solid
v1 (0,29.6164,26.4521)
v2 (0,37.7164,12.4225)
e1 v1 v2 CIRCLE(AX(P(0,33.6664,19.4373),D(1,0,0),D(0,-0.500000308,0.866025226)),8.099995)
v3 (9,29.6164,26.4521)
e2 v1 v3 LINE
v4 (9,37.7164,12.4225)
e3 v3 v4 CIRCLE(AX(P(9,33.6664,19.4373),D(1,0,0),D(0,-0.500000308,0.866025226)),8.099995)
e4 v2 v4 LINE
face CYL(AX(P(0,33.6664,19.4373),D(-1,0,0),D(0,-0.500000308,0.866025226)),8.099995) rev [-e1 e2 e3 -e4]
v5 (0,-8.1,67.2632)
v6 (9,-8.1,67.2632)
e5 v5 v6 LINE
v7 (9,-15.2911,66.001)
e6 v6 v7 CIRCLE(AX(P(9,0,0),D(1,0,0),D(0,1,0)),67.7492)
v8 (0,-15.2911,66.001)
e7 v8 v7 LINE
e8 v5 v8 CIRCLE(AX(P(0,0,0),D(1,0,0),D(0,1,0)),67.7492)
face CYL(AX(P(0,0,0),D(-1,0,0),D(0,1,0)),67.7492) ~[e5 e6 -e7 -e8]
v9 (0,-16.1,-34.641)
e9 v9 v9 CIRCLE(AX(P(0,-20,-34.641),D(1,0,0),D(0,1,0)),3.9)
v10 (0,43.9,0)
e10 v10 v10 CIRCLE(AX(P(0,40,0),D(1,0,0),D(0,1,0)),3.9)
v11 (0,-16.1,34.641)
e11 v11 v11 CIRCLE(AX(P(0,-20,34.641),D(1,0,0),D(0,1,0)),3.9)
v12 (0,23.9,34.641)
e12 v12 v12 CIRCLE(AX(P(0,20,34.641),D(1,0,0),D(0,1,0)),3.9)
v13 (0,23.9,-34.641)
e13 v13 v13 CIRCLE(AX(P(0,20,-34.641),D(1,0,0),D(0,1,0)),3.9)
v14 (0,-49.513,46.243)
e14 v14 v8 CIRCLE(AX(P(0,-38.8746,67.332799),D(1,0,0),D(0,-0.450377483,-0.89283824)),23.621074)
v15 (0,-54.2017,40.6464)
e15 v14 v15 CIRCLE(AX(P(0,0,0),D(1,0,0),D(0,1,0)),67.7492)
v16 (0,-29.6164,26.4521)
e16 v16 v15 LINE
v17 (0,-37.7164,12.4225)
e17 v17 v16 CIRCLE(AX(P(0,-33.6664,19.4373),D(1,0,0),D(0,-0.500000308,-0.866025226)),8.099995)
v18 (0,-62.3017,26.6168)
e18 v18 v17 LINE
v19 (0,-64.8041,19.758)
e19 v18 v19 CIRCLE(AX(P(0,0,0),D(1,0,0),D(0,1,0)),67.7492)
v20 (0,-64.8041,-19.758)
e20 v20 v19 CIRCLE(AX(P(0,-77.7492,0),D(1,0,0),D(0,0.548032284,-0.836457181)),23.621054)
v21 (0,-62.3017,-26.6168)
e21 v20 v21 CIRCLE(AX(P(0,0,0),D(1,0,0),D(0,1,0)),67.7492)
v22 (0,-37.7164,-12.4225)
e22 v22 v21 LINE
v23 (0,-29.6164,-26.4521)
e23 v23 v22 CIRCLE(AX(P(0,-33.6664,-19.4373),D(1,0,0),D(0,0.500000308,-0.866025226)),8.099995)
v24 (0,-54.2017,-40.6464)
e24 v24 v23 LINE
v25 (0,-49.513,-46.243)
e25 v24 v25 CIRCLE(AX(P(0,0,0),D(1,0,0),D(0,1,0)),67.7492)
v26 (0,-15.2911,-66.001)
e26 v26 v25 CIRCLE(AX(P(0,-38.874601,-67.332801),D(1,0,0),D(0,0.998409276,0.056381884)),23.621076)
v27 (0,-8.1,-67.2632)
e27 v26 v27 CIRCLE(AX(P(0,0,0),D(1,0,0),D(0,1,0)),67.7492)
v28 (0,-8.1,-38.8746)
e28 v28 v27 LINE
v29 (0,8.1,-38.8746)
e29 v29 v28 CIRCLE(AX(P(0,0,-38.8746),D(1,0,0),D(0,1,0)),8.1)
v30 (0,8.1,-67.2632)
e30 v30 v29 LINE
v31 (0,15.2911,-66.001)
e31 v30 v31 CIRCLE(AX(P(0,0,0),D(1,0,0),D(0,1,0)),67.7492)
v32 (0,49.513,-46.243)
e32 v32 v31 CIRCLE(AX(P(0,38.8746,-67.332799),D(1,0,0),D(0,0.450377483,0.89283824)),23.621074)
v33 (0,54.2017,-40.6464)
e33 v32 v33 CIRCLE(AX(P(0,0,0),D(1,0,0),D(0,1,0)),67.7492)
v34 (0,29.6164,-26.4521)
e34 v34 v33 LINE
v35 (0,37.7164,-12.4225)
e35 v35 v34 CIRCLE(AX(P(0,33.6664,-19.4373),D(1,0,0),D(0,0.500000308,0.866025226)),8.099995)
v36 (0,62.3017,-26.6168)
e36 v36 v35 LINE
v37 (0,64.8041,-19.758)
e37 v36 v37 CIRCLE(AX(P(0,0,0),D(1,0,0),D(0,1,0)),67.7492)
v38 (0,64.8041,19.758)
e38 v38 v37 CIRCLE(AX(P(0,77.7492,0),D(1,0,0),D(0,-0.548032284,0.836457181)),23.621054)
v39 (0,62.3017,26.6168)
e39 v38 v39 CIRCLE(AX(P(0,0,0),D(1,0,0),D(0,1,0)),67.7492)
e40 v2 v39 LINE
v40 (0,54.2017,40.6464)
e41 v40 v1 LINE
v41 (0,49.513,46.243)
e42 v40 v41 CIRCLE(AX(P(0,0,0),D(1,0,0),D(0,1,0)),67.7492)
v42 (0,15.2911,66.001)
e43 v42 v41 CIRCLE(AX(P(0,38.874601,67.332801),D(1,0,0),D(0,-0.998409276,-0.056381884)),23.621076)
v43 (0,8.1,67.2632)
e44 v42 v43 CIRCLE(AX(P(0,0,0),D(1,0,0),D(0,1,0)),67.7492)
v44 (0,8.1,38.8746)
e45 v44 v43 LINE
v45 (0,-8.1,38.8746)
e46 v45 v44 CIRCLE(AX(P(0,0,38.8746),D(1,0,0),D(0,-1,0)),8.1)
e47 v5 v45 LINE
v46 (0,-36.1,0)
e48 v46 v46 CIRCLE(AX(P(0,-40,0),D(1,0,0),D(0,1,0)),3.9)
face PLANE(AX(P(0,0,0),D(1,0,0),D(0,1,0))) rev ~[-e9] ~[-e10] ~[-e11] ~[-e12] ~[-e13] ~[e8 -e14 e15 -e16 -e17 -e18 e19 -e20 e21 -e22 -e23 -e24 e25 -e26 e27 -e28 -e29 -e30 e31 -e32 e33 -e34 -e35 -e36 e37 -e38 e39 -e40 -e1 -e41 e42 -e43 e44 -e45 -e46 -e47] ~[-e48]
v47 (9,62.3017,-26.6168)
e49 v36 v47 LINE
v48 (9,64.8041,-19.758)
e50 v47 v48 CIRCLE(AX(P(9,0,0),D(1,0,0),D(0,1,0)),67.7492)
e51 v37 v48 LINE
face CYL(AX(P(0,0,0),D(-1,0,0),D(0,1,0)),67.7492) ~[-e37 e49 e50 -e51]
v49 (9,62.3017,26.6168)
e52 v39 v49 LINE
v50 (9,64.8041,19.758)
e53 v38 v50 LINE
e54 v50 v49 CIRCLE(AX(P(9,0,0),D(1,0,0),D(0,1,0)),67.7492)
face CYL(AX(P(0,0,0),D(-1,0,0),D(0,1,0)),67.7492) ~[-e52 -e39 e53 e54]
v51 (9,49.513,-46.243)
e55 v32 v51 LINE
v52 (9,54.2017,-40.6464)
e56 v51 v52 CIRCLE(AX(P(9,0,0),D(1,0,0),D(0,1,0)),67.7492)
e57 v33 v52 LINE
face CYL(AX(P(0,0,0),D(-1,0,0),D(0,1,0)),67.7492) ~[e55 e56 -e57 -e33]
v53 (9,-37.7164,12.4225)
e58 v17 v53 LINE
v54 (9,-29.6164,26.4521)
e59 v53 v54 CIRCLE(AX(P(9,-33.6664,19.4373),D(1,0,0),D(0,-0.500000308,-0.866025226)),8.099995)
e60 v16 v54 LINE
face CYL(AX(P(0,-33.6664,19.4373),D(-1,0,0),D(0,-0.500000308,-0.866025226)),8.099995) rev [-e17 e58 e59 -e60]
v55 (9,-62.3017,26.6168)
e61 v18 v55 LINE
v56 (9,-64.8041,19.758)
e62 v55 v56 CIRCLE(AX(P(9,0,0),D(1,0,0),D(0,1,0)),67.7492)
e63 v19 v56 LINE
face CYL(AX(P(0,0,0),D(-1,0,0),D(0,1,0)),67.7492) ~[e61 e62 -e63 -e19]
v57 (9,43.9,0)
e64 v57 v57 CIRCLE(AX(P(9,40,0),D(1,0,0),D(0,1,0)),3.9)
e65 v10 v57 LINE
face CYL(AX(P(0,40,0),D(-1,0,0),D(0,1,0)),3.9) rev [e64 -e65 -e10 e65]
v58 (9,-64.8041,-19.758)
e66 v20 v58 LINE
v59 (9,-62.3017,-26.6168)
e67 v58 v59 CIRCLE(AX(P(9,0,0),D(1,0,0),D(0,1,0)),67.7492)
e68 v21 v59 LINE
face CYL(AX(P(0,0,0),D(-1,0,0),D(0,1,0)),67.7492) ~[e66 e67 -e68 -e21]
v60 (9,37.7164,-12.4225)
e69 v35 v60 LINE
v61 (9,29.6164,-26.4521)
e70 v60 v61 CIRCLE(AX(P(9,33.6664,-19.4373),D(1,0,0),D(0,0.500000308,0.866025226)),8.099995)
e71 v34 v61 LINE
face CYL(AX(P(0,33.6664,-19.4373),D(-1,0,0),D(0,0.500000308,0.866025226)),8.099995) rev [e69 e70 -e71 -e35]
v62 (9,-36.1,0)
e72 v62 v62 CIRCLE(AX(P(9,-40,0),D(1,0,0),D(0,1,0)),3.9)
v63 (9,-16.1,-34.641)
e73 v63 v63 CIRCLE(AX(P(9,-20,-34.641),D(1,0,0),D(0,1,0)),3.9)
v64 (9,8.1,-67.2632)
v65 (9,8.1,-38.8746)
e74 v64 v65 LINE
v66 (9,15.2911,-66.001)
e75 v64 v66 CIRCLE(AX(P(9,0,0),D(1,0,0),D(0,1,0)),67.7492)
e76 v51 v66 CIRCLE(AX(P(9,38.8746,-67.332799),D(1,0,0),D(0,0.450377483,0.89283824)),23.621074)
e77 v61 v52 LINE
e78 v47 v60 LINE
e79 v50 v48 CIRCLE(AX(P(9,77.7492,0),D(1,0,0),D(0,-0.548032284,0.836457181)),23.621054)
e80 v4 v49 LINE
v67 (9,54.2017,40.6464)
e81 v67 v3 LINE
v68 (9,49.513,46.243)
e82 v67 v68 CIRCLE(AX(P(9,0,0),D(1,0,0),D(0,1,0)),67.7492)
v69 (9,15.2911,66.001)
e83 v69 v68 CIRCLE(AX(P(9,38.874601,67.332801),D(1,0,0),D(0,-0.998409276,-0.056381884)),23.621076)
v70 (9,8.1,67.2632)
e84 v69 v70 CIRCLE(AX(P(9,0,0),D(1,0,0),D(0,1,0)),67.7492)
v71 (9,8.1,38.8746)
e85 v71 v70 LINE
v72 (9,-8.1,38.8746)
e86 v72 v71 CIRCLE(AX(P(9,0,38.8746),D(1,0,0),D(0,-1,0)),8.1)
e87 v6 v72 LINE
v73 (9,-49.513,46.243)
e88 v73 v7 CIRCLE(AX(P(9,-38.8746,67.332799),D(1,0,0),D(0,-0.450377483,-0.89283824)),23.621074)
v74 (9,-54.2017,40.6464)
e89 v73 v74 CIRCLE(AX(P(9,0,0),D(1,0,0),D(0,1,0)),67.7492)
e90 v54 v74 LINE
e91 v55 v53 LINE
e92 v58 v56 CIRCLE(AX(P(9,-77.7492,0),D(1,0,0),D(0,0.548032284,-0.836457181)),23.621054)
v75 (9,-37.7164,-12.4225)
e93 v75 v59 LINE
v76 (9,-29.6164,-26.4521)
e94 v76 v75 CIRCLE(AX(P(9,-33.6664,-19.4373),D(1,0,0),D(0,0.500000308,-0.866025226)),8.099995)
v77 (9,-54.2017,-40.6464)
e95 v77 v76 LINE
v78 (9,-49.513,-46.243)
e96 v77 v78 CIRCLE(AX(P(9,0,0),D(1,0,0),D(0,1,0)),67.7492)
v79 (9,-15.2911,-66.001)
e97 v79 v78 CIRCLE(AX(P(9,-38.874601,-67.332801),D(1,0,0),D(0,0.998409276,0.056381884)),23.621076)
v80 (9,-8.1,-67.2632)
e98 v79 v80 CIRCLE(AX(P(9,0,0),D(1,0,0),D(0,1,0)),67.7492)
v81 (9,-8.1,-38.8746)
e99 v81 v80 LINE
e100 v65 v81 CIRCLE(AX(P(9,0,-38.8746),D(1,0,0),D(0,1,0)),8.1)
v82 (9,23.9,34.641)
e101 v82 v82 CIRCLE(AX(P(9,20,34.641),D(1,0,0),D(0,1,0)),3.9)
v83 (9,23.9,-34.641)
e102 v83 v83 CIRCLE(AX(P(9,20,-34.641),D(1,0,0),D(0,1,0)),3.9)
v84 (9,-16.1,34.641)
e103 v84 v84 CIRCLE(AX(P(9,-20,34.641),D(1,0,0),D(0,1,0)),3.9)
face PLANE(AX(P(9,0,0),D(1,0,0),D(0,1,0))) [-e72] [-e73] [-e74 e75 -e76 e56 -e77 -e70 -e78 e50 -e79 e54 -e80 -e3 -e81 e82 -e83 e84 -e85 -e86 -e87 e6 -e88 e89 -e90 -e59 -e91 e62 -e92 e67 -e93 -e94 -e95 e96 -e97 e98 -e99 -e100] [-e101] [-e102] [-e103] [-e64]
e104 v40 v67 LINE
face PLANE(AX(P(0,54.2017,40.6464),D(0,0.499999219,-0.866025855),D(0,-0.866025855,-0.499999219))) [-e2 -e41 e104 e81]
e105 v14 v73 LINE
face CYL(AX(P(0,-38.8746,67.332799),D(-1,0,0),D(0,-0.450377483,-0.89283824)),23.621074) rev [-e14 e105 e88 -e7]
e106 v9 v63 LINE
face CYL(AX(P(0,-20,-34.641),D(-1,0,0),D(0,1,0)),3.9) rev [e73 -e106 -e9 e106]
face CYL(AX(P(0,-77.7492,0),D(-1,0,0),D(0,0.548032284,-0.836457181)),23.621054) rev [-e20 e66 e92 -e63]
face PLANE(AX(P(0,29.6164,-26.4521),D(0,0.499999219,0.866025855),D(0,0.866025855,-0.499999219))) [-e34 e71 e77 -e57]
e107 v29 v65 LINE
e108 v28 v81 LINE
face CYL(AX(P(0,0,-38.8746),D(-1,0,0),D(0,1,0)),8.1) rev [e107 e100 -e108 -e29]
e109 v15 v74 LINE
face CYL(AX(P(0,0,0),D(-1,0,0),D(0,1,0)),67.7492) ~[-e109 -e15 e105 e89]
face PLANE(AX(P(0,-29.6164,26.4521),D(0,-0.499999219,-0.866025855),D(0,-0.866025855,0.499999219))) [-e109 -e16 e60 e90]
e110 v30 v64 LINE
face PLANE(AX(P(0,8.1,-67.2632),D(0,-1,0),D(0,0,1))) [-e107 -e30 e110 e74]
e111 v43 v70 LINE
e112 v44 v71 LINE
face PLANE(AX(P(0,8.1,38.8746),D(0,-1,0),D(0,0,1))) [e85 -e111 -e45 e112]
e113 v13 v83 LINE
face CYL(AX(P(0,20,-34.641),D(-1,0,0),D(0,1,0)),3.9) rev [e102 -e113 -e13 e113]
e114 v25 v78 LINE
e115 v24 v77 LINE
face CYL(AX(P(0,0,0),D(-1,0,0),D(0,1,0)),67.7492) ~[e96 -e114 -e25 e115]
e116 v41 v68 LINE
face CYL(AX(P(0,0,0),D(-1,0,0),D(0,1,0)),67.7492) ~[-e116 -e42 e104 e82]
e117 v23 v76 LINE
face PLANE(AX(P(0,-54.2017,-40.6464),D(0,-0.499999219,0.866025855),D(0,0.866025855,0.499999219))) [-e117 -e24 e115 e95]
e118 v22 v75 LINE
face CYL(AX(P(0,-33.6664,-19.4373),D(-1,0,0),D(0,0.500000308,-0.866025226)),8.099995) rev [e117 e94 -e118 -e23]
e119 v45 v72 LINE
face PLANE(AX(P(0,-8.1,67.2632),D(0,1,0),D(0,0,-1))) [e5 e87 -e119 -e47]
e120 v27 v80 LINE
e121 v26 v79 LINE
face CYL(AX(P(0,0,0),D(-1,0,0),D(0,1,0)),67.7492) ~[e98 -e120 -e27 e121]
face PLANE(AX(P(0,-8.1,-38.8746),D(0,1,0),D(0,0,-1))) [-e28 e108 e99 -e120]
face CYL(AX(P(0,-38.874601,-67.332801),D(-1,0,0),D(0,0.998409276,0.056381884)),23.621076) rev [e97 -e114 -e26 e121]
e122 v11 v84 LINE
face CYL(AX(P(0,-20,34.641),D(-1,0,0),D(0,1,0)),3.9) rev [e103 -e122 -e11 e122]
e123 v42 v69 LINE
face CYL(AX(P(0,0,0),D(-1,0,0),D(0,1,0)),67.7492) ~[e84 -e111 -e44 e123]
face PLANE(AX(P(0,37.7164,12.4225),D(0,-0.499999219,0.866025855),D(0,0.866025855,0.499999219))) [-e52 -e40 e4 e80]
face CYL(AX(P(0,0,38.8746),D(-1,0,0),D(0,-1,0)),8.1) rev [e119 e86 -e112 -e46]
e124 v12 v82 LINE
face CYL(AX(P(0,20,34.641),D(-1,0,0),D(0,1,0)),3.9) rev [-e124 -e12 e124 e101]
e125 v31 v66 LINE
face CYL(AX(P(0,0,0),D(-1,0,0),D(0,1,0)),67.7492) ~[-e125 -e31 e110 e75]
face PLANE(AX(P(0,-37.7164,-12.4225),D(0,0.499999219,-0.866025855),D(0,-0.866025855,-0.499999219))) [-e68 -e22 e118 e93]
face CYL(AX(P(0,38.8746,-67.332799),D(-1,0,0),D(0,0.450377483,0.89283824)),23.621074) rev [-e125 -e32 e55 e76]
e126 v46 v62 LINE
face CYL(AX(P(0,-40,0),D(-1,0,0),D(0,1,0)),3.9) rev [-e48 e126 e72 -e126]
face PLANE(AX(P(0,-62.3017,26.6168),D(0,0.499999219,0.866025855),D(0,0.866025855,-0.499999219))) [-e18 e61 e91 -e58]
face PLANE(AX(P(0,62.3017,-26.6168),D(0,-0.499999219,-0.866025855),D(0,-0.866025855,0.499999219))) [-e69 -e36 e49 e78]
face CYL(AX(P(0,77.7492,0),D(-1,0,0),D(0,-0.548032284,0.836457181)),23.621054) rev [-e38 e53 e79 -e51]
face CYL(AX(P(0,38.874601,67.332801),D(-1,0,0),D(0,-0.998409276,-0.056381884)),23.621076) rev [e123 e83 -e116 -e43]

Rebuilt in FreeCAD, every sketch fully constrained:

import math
import FreeCAD as App
import Part
import Sketcher
Q = App.Units.Quantity

doc = App.newDocument("Part")
params = doc.addObject("Spreadsheet::Sheet", "Params")
for row, (alias, value) in enumerate([
    ("sketch1_diameter", "7.8 mm"),
    ("sketch1_radius", "8.1 mm"),
    ("pad1_length", "9 mm"),
], start=1):
    params.set(f"A{row}", alias)
    params.set(f"B{row}", "=" + value)
    params.setAlias(f"B{row}", alias)

body = doc.addObject("PartDesign::Body", "Body")

sketch1 = body.newObject("Sketcher::SketchObject", "Sketch")
sketch1.AttachmentSupport = (doc.getObject("YZ_Plane"), [""])
sketch1.MapMode = "FlatFace"
sketch1.addGeometry([
    Part.ArcOfCircle(Part.Circle(App.Vector(77.7, 0, 0), App.Vector(0, 0, 1), 23.6), math.radians(123), math.radians(237)),
    Part.ArcOfCircle(Part.Circle(App.Vector(0, 0, 0), App.Vector(0, 0, 1), 67.7), math.radians(16.96), math.radians(23.13)),
    Part.LineSegment(App.Vector(62.3, 26.6, 0), App.Vector(37.7, 12.4, 0)),
    Part.ArcOfCircle(Part.Circle(App.Vector(33.7, 19.4, 0), App.Vector(0, 0, 1), 8.1), math.radians(120), math.radians(300)),
    Part.LineSegment(App.Vector(29.6, 26.5, 0), App.Vector(54.2, 40.6, 0)),
    Part.ArcOfCircle(Part.Circle(App.Vector(0, 0, 0), App.Vector(0, 0, 1), 67.7), math.radians(36.87), math.radians(43.04)),
    Part.ArcOfCircle(Part.Circle(App.Vector(38.9, 67.3, 0), App.Vector(0, 0, 1), 23.6), math.radians(-177), math.radians(-63)),
    Part.ArcOfCircle(Part.Circle(App.Vector(0, 0, 0), App.Vector(0, 0, 1), 67.7), math.radians(76.96), math.radians(83.13)),
    Part.LineSegment(App.Vector(8.1, 67.3, 0), App.Vector(8.1, 38.9, 0)),
    Part.ArcOfCircle(Part.Circle(App.Vector(0, 38.9, 0), App.Vector(0, 0, 1), 8.1), math.radians(180), math.radians(360)),
    Part.LineSegment(App.Vector(-8.1, 38.9, 0), App.Vector(-8.1, 67.3, 0)),
    Part.ArcOfCircle(Part.Circle(App.Vector(0, 0, 0), App.Vector(0, 0, 1), 67.7), math.radians(96.87), math.radians(103.04)),
    Part.ArcOfCircle(Part.Circle(App.Vector(-38.9, 67.3, 0), App.Vector(0, 0, 1), 23.6), math.radians(-117), math.radians(-3)),
    Part.ArcOfCircle(Part.Circle(App.Vector(0, 0, 0), App.Vector(0, 0, 1), 67.7), math.radians(136.96), math.radians(143.13)),
    Part.LineSegment(App.Vector(-54.2, 40.6, 0), App.Vector(-29.6, 26.5, 0)),
    Part.ArcOfCircle(Part.Circle(App.Vector(-33.7, 19.4, 0), App.Vector(0, 0, 1), 8.1), math.radians(-120), math.radians(60)),
    Part.LineSegment(App.Vector(-37.7, 12.4, 0), App.Vector(-62.3, 26.6, 0)),
    Part.ArcOfCircle(Part.Circle(App.Vector(0, 0, 0), App.Vector(0, 0, 1), 67.7), math.radians(156.87), math.radians(163.04)),
    Part.ArcOfCircle(Part.Circle(App.Vector(-77.7, 0, 0), App.Vector(0, 0, 1), 23.6), math.radians(-57), math.radians(57)),
    Part.ArcOfCircle(Part.Circle(App.Vector(0, 0, 0), App.Vector(0, 0, 1), 67.7), math.radians(-163.04), math.radians(-156.87)),
    Part.LineSegment(App.Vector(-62.3, -26.6, 0), App.Vector(-37.7, -12.4, 0)),
    Part.ArcOfCircle(Part.Circle(App.Vector(-33.7, -19.4, 0), App.Vector(0, 0, 1), 8.1), math.radians(-60), math.radians(120)),
    Part.LineSegment(App.Vector(-29.6, -26.5, 0), App.Vector(-54.2, -40.6, 0)),
    Part.ArcOfCircle(Part.Circle(App.Vector(0, 0, 0), App.Vector(0, 0, 1), 67.7), math.radians(-143.13), math.radians(-136.96)),
    Part.ArcOfCircle(Part.Circle(App.Vector(-38.9, -67.3, 0), App.Vector(0, 0, 1), 23.6), math.radians(3), math.radians(117)),
    Part.ArcOfCircle(Part.Circle(App.Vector(0, 0, 0), App.Vector(0, 0, 1), 67.7), math.radians(-103.04), math.radians(-96.87)),
    Part.LineSegment(App.Vector(-8.1, -67.3, 0), App.Vector(-8.1, -38.9, 0)),
    Part.ArcOfCircle(Part.Circle(App.Vector(0, -38.9, 0), App.Vector(0, 0, 1), 8.1), math.radians(0), math.radians(180)),
    Part.LineSegment(App.Vector(8.1, -38.9, 0), App.Vector(8.1, -67.3, 0)),
    Part.ArcOfCircle(Part.Circle(App.Vector(0, 0, 0), App.Vector(0, 0, 1), 67.7), math.radians(-83.13), math.radians(-76.96)),
    Part.ArcOfCircle(Part.Circle(App.Vector(38.9, -67.3, 0), App.Vector(0, 0, 1), 23.6), math.radians(63), math.radians(177)),
    Part.ArcOfCircle(Part.Circle(App.Vector(0, 0, 0), App.Vector(0, 0, 1), 67.7), math.radians(-43.04), math.radians(-36.87)),
    Part.LineSegment(App.Vector(54.2, -40.6, 0), App.Vector(29.6, -26.5, 0)),
    Part.ArcOfCircle(Part.Circle(App.Vector(33.7, -19.4, 0), App.Vector(0, 0, 1), 8.1), math.radians(60), math.radians(240)),
    Part.LineSegment(App.Vector(37.7, -12.4, 0), App.Vector(62.3, -26.6, 0)),
    Part.ArcOfCircle(Part.Circle(App.Vector(0, 0, 0), App.Vector(0, 0, 1), 67.7), math.radians(-23.13), math.radians(-16.96)),
    Part.Circle(App.Vector(-20, -34.6, 0), App.Vector(0, 0, 1), 3.9),
    Part.Circle(App.Vector(20, -34.6, 0), App.Vector(0, 0, 1), 3.9),
    Part.Circle(App.Vector(-40, 0, 0), App.Vector(0, 0, 1), 3.9),
    Part.Circle(App.Vector(-20, 34.6, 0), App.Vector(0, 0, 1), 3.9),
    Part.Circle(App.Vector(40, 0, 0), App.Vector(0, 0, 1), 3.9),
    Part.Circle(App.Vector(20, 34.6, 0), App.Vector(0, 0, 1), 3.9),
], False)
sketch1.addConstraint([
    Sketcher.Constraint("Coincident", 0, 1, 1, 1),
    Sketcher.Constraint("Coincident", 1, 2, 2, 1),
    Sketcher.Constraint("Tangent", 2, 2, 3, 2),
    Sketcher.Constraint("Tangent", 3, 1, 4, 1),
    Sketcher.Constraint("Coincident", 4, 2, 5, 1),
    Sketcher.Constraint("Coincident", 5, 2, 6, 2),
    Sketcher.Constraint("Coincident", 6, 1, 7, 1),
    Sketcher.Constraint("Coincident", 7, 2, 8, 1),
    Sketcher.Constraint("Tangent", 8, 2, 9, 2),
    Sketcher.Constraint("Tangent", 9, 1, 10, 1),
    Sketcher.Constraint("Coincident", 10, 2, 11, 1),
    Sketcher.Constraint("Coincident", 11, 2, 12, 2),
    Sketcher.Constraint("Coincident", 12, 1, 13, 1),
    Sketcher.Constraint("Coincident", 13, 2, 14, 1),
    Sketcher.Constraint("Tangent", 14, 2, 15, 2),
    Sketcher.Constraint("Tangent", 15, 1, 16, 1),
    Sketcher.Constraint("Coincident", 16, 2, 17, 1),
    Sketcher.Constraint("Coincident", 17, 2, 18, 2),
    Sketcher.Constraint("Coincident", 18, 1, 19, 1),
    Sketcher.Constraint("Coincident", 19, 2, 20, 1),
    Sketcher.Constraint("Tangent", 20, 2, 21, 2),
    Sketcher.Constraint("Tangent", 21, 1, 22, 1),
    Sketcher.Constraint("Coincident", 22, 2, 23, 1),
    Sketcher.Constraint("Coincident", 23, 2, 24, 2),
    Sketcher.Constraint("Coincident", 24, 1, 25, 1),
    Sketcher.Constraint("Coincident", 25, 2, 26, 1),
    Sketcher.Constraint("Tangent", 26, 2, 27, 2),
    Sketcher.Constraint("Tangent", 27, 1, 28, 1),
    Sketcher.Constraint("Coincident", 28, 2, 29, 1),
    Sketcher.Constraint("Coincident", 29, 2, 30, 2),
    Sketcher.Constraint("Coincident", 30, 1, 31, 1),
    Sketcher.Constraint("Coincident", 31, 2, 32, 1),
    Sketcher.Constraint("Tangent", 32, 2, 33, 2),
    Sketcher.Constraint("Tangent", 33, 1, 34, 1),
    Sketcher.Constraint("Coincident", 34, 2, 35, 1),
    Sketcher.Constraint("Coincident", 35, 2, 0, 2),
    Sketcher.Constraint("Vertical", 8),
    Sketcher.Constraint("Vertical", 10),
    Sketcher.Constraint("Vertical", 26),
    Sketcher.Constraint("Vertical", 28),
    Sketcher.Constraint("Coincident", 1, 3, -1, 1),
    Sketcher.Constraint("Coincident", 5, 3, -1, 1),
    Sketcher.Constraint("Coincident", 7, 3, -1, 1),
    Sketcher.Constraint("Coincident", 11, 3, -1, 1),
    Sketcher.Constraint("Coincident", 13, 3, -1, 1),
    Sketcher.Constraint("Coincident", 17, 3, -1, 1),
    Sketcher.Constraint("Coincident", 19, 3, -1, 1),
    Sketcher.Constraint("Coincident", 23, 3, -1, 1),
    Sketcher.Constraint("Coincident", 25, 3, -1, 1),
    Sketcher.Constraint("Coincident", 29, 3, -1, 1),
    Sketcher.Constraint("Coincident", 31, 3, -1, 1),
    Sketcher.Constraint("Coincident", 35, 3, -1, 1),
    Sketcher.Constraint("Equal", 1, 5),
    Sketcher.Constraint("Equal", 0, 6),
    Sketcher.Constraint("Equal", 5, 7),
    Sketcher.Constraint("Equal", 3, 9),
    Sketcher.Constraint("Equal", 7, 11),
    Sketcher.Constraint("Equal", 6, 12),
    Sketcher.Constraint("Equal", 11, 13),
    Sketcher.Constraint("Equal", 9, 15),
    Sketcher.Constraint("Equal", 13, 17),
    Sketcher.Constraint("Equal", 12, 18),
    Sketcher.Constraint("Equal", 17, 19),
    Sketcher.Constraint("Equal", 15, 21),
    Sketcher.Constraint("Equal", 19, 23),
    Sketcher.Constraint("Equal", 18, 24),
    Sketcher.Constraint("Equal", 23, 25),
    Sketcher.Constraint("Equal", 21, 27),
    Sketcher.Constraint("Equal", 25, 29),
    Sketcher.Constraint("Equal", 24, 30),
    Sketcher.Constraint("Equal", 29, 31),
    Sketcher.Constraint("Equal", 27, 33),
    Sketcher.Constraint("Equal", 31, 35),
    Sketcher.Constraint("Equal", 36, 37),
    Sketcher.Constraint("Equal", 37, 38),
    Sketcher.Constraint("Equal", 38, 39),
    Sketcher.Constraint("Equal", 39, 40),
    Sketcher.Constraint("Equal", 40, 41),
    Sketcher.Constraint("Symmetric", 0, 3, 18, 3, -1, 1),
    Sketcher.Constraint("Symmetric", 3, 3, 21, 3, -1, 1),
    Sketcher.Constraint("Symmetric", 6, 3, 24, 3, -1, 1),
    Sketcher.Constraint("Symmetric", 9, 3, 27, 3, -1, 1),
    Sketcher.Constraint("Symmetric", 12, 3, 30, 3, -1, 1),
    Sketcher.Constraint("Symmetric", 15, 3, 33, 3, -1, 1),
    Sketcher.Constraint("Symmetric", 37, 3, 39, 3, -1, 1),
    Sketcher.Constraint("Symmetric", 38, 3, 40, 3, -1, 1),
    Sketcher.Constraint("Symmetric", 36, 3, 41, 3, -1, 1),
    Sketcher.Constraint("Symmetric", 6, 3, 12, 3, -2),
    Sketcher.Constraint("Symmetric", 3, 3, 15, 3, -2),
    Sketcher.Constraint("Symmetric", 36, 3, 37, 3, -2),
    Sketcher.Constraint("PointOnObject", 0, 3, -1),
    Sketcher.Constraint("PointOnObject", 9, 3, -2),
    Sketcher.Constraint("PointOnObject", 38, 3, -1),
    Sketcher.Constraint("Parallel", 2, 4),
    Sketcher.Constraint("Parallel", 14, 16),
    Sketcher.Constraint("Parallel", 4, 20),
    Sketcher.Constraint("Parallel", 20, 22),
    Sketcher.Constraint("Parallel", 16, 32),
    Sketcher.Constraint("Parallel", 32, 34),
    Sketcher.Constraint("Horizontal", 4, 2, 13, 2),
    Sketcher.Constraint("Equal", 2, 4),
    Sketcher.Constraint("Diameter", 36, 7.8),
    Sketcher.Constraint("DistanceX", 38, 3, -1, 1, 40.0),
    Sketcher.Constraint("Radius", 3, 8.1),
    Sketcher.Constraint("Angle", 2, Q("-150 deg")),
    Sketcher.Constraint("DistanceX", 36, 3, -1, 1, 20.0),
    Sketcher.Constraint("Radius", 0, 23.621),
    Sketcher.Constraint("Radius", 1, 67.7492),
    Sketcher.Constraint("DistanceY", 8, 2, 8, 1, 28.3886),
    Sketcher.Constraint("DistanceY", 36, 3, -1, 1, 34.641),
    Sketcher.Constraint("DistanceX", -1, 1, 0, 1, 64.804),
    Sketcher.Constraint("DistanceY", -1, 1, 3, 1, 26.452),
    Sketcher.Constraint("DistanceX", -1, 1, 5, 2, 49.513),
    Sketcher.Constraint("DistanceX", -1, 1, 6, 1, 15.291),
])
sketch1.setExpression("Constraints[101]", "Params.sketch1_diameter")
sketch1.setExpression("Constraints[103]", "Params.sketch1_radius")
pad1 = body.newObject("PartDesign::Pad", "Pad")
pad1.Profile = sketch1
pad1.setExpression("Length", "Params.pad1_length")

doc.recompute()
